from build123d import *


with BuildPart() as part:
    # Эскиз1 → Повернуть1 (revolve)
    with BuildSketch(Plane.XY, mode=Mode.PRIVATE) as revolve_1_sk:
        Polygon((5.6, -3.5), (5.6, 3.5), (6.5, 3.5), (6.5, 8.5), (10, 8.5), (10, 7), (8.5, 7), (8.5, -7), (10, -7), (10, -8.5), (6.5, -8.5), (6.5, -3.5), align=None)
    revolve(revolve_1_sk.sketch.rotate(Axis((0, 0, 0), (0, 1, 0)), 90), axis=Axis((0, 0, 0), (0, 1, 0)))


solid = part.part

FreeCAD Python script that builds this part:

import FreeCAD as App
import Part
import Sketcher
from FreeCAD import Vector

doc = App.newDocument("Part")
body = doc.addObject("PartDesign::Body", "Body")

sketch1 = body.newObject("Sketcher::SketchObject", "Sketch")
sketch1.AttachmentSupport = (doc.getObject("XY_Plane"), [""])
sketch1.MapMode = "FlatFace"
sketch1.addGeometry(Part.LineSegment(Vector(5.6, 3.5, 0), Vector(5.6, -3.5, 0)), False)
sketch1.addGeometry(Part.LineSegment(Vector(5.6, -3.5, 0), Vector(6.5, -3.5, 0)), False)
sketch1.addGeometry(Part.LineSegment(Vector(6.5, -3.5, 0), Vector(6.5, -8.5, 0)), False)
sketch1.addGeometry(Part.LineSegment(Vector(6.5, -8.5, 0), Vector(10, -8.5, 0)), False)
sketch1.addGeometry(Part.LineSegment(Vector(10, -8.5, 0), Vector(10, -7, 0)), False)
sketch1.addGeometry(Part.LineSegment(Vector(10, -7, 0), Vector(8.5, -7, 0)), False)
sketch1.addGeometry(Part.LineSegment(Vector(8.5, -7, 0), Vector(8.5, 7, 0)), False)
sketch1.addGeometry(Part.LineSegment(Vector(8.5, 7, 0), Vector(10, 7, 0)), False)
sketch1.addGeometry(Part.LineSegment(Vector(10, 7, 0), Vector(10, 8.5, 0)), False)
sketch1.addGeometry(Part.LineSegment(Vector(10, 8.5, 0), Vector(6.5, 8.5, 0)), False)
sketch1.addGeometry(Part.LineSegment(Vector(6.5, 8.5, 0), Vector(6.5, 3.5, 0)), False)
sketch1.addGeometry(Part.LineSegment(Vector(6.5, 3.5, 0), Vector(5.6, 3.5, 0)), False)
sketch1.addConstraint(Sketcher.Constraint("Coincident", 0, 2, 1, 1))
sketch1.addConstraint(Sketcher.Constraint("Coincident", 1, 2, 2, 1))
sketch1.addConstraint(Sketcher.Constraint("Coincident", 2, 2, 3, 1))
sketch1.addConstraint(Sketcher.Constraint("Coincident", 3, 2, 4, 1))
sketch1.addConstraint(Sketcher.Constraint("Coincident", 4, 2, 5, 1))
sketch1.addConstraint(Sketcher.Constraint("Coincident", 5, 2, 6, 1))
sketch1.addConstraint(Sketcher.Constraint("Coincident", 6, 2, 7, 1))
sketch1.addConstraint(Sketcher.Constraint("Coincident", 7, 2, 8, 1))
sketch1.addConstraint(Sketcher.Constraint("Coincident", 8, 2, 9, 1))
sketch1.addConstraint(Sketcher.Constraint("Coincident", 9, 2, 10, 1))
sketch1.addConstraint(Sketcher.Constraint("Coincident", 10, 2, 11, 1))
sketch1.addConstraint(Sketcher.Constraint("Coincident", 11, 2, 0, 1))
sketch1.addConstraint(Sketcher.Constraint("Vertical", 0))
sketch1.addConstraint(Sketcher.Constraint("Horizontal", 1))
sketch1.addConstraint(Sketcher.Constraint("Vertical", 2))
sketch1.addConstraint(Sketcher.Constraint("Horizontal", 3))
sketch1.addConstraint(Sketcher.Constraint("Vertical", 4))
sketch1.addConstraint(Sketcher.Constraint("Horizontal", 5))
sketch1.addConstraint(Sketcher.Constraint("Vertical", 6))
sketch1.addConstraint(Sketcher.Constraint("Horizontal", 7))
sketch1.addConstraint(Sketcher.Constraint("Vertical", 8))
sketch1.addConstraint(Sketcher.Constraint("Horizontal", 9))
sketch1.addConstraint(Sketcher.Constraint("Vertical", 10))
sketch1.addConstraint(Sketcher.Constraint("Horizontal", 11))
sketch1.addConstraint(Sketcher.Constraint("Symmetric", 4, 2, 7, 2, -1))
sketch1.addConstraint(Sketcher.Constraint("Symmetric", 2, 2, 9, 2, -1))
sketch1.addConstraint(Sketcher.Constraint("Equal", 7, 4))
sketch1.addConstraint(Sketcher.Constraint("Equal", 2, 10))
sketch1.addConstraint(Sketcher.Constraint("DistanceY", 0, 2, 0, 1, 7.0))
sketch1.addConstraint(Sketcher.Constraint("DistanceY", 2, 2, 2, 1, 5.0))
sketch1.addConstraint(Sketcher.Constraint("DistanceY", 6, 1, 6, 2, 14.0))
sketch1.addConstraint(Sketcher.Constraint("DistanceX", 1, 1, 1, 2, 0.9))
sketch1.addConstraint(Sketcher.Constraint("DistanceX", 3, 1, 3, 2, 3.5))
sketch1.addConstraint(Sketcher.Constraint("DistanceX", -1, 1, 3, 2, 10.0))
revolution = body.newObject("PartDesign::Revolution", "Revolution")
revolution.Profile = sketch1
revolution.ReferenceAxis = (sketch1, ["V_Axis"])
revolution.Angle = 360

doc.recompute()
